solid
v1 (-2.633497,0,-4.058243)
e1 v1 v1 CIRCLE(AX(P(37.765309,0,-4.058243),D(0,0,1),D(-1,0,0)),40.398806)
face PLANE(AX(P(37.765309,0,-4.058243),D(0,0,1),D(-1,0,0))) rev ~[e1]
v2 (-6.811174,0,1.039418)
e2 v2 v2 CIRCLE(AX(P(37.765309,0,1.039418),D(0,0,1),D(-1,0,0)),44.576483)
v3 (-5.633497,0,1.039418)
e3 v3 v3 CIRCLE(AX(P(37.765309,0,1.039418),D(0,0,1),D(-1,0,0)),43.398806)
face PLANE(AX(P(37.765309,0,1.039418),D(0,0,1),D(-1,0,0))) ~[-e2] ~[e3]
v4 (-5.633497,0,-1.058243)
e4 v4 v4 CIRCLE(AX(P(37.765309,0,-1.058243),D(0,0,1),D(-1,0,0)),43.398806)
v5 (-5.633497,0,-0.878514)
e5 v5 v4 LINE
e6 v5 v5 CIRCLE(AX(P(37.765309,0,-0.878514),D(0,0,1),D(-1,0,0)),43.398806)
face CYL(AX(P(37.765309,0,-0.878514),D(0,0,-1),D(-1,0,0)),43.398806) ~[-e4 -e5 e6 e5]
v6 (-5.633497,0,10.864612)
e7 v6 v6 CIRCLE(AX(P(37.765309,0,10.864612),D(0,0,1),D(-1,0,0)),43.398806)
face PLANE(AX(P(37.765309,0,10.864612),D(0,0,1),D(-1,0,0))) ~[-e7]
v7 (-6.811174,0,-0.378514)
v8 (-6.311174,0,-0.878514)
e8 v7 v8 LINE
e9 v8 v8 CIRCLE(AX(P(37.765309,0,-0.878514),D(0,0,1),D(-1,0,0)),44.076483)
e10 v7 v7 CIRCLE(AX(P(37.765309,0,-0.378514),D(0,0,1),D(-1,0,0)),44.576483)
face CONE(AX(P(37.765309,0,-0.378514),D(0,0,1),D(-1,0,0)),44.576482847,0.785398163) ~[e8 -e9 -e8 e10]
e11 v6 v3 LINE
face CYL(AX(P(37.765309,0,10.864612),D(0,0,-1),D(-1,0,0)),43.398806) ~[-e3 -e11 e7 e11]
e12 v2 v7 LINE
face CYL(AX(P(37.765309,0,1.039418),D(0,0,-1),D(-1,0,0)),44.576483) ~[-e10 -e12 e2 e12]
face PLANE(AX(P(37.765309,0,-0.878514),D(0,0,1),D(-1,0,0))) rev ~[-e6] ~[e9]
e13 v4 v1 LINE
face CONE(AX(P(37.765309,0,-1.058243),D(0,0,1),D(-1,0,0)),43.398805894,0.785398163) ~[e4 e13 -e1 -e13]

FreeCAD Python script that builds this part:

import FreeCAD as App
import Part
import Sketcher
from FreeCAD import Vector


def edges_at(feature, points):
    """Names of the edges that pass closest to the given points."""
    edges = feature.Shape.Edges
    near = lambda p: min(range(len(edges)), key=lambda i: edges[i].distToShape(Part.Vertex(*p))[0])
    return sorted({f"Edge{near(p) + 1}" for p in points})

doc = App.newDocument("Part")
body = doc.addObject("PartDesign::Body", "Body")

sketch1 = body.newObject("Sketcher::SketchObject", "Sketch")
sketch1.AttachmentSupport = (doc.getObject("XZ_Plane"), [""])
sketch1.MapMode = "FlatFace"
sketch1.addGeometry([
    Part.LineSegment(Vector(37.765309, 10.864612, 0), Vector(-5.633497, 10.864612, 0)),
    Part.LineSegment(Vector(-5.633497, 10.864612, 0), Vector(-5.633497, 1.039418, 0)),
    Part.LineSegment(Vector(-5.633497, 1.039418, 0), Vector(-6.811174, 1.039418, 0)),
    Part.LineSegment(Vector(-6.811174, 1.039418, 0), Vector(-6.811174, -0.878514, 0)),
    Part.LineSegment(Vector(-6.811174, -0.878514, 0), Vector(-5.633497, -0.878514, 0)),
    Part.LineSegment(Vector(-5.633497, -0.878514, 0), Vector(-5.633497, -4.058243, 0)),
    Part.LineSegment(Vector(-5.633497, -4.058243, 0), Vector(37.765309, -4.058243, 0)),
    Part.LineSegment(Vector(37.765309, -4.058243, 0), Vector(37.765309, 10.864612, 0)),
], False)
sketch1.addGeometry(Part.LineSegment(Vector(37.765309, -4.058243, 0), Vector(37.765309, 10.864612, 0)), True)
sketch1.addConstraint([
    Sketcher.Constraint("Coincident", 0, 2, 1, 1),
    Sketcher.Constraint("Coincident", 1, 2, 2, 1),
    Sketcher.Constraint("Coincident", 2, 2, 3, 1),
    Sketcher.Constraint("Coincident", 3, 2, 4, 1),
    Sketcher.Constraint("Coincident", 4, 2, 5, 1),
    Sketcher.Constraint("Coincident", 5, 2, 6, 1),
    Sketcher.Constraint("Coincident", 6, 2, 7, 1),
    Sketcher.Constraint("Coincident", 7, 2, 0, 1),
    Sketcher.Constraint("Horizontal", 0),
    Sketcher.Constraint("Vertical", 1),
    Sketcher.Constraint("Horizontal", 2),
    Sketcher.Constraint("Vertical", 3),
    Sketcher.Constraint("Horizontal", 4),
    Sketcher.Constraint("Vertical", 5),
    Sketcher.Constraint("Horizontal", 6),
    Sketcher.Constraint("Vertical", 7),
    Sketcher.Constraint("Vertical", 8),
    Sketcher.Constraint("Coincident", 8, 1, 6, 2),
    Sketcher.Constraint("Horizontal", 0, 2, 8, 2),
    Sketcher.Constraint("Vertical", 1, 2, 4, 2),
    Sketcher.Constraint("DistanceY", 3, 2, 3, 1, 1.917932),
    Sketcher.Constraint("DistanceY", 5, 2, 5, 1, 3.179729),
    Sketcher.Constraint("DistanceX", 0, 2, 0, 1, 43.398806),
    Sketcher.Constraint("DistanceX", 2, 2, 2, 1, 1.177677),
    Sketcher.Constraint("DistanceY", 1, 2, 1, 1, 9.825194),
    Sketcher.Constraint("DistanceY", -1, 1, 0, 2, 10.864612),
    Sketcher.Constraint("DistanceX", -1, 1, 6, 2, 37.765309),
])
revolution = body.newObject("PartDesign::Revolution", "Revolution")
revolution.Profile = sketch1
revolution.ReferenceAxis = (sketch1, ["Axis0"])
revolution.Angle = 360
doc.recompute()

chamfer = body.newObject("PartDesign::Chamfer", "Chamfer")
chamfer.Base = (revolution, edges_at(revolution, [(82.342, 0, -0.879)]))
chamfer.Size = 0.5
doc.recompute()

chamfer2 = body.newObject("PartDesign::Chamfer", "Chamfer001")
chamfer2.Base = (chamfer, edges_at(chamfer, [(81.164, 0, -4.058)]))
chamfer2.Size = 3

doc.recompute()
